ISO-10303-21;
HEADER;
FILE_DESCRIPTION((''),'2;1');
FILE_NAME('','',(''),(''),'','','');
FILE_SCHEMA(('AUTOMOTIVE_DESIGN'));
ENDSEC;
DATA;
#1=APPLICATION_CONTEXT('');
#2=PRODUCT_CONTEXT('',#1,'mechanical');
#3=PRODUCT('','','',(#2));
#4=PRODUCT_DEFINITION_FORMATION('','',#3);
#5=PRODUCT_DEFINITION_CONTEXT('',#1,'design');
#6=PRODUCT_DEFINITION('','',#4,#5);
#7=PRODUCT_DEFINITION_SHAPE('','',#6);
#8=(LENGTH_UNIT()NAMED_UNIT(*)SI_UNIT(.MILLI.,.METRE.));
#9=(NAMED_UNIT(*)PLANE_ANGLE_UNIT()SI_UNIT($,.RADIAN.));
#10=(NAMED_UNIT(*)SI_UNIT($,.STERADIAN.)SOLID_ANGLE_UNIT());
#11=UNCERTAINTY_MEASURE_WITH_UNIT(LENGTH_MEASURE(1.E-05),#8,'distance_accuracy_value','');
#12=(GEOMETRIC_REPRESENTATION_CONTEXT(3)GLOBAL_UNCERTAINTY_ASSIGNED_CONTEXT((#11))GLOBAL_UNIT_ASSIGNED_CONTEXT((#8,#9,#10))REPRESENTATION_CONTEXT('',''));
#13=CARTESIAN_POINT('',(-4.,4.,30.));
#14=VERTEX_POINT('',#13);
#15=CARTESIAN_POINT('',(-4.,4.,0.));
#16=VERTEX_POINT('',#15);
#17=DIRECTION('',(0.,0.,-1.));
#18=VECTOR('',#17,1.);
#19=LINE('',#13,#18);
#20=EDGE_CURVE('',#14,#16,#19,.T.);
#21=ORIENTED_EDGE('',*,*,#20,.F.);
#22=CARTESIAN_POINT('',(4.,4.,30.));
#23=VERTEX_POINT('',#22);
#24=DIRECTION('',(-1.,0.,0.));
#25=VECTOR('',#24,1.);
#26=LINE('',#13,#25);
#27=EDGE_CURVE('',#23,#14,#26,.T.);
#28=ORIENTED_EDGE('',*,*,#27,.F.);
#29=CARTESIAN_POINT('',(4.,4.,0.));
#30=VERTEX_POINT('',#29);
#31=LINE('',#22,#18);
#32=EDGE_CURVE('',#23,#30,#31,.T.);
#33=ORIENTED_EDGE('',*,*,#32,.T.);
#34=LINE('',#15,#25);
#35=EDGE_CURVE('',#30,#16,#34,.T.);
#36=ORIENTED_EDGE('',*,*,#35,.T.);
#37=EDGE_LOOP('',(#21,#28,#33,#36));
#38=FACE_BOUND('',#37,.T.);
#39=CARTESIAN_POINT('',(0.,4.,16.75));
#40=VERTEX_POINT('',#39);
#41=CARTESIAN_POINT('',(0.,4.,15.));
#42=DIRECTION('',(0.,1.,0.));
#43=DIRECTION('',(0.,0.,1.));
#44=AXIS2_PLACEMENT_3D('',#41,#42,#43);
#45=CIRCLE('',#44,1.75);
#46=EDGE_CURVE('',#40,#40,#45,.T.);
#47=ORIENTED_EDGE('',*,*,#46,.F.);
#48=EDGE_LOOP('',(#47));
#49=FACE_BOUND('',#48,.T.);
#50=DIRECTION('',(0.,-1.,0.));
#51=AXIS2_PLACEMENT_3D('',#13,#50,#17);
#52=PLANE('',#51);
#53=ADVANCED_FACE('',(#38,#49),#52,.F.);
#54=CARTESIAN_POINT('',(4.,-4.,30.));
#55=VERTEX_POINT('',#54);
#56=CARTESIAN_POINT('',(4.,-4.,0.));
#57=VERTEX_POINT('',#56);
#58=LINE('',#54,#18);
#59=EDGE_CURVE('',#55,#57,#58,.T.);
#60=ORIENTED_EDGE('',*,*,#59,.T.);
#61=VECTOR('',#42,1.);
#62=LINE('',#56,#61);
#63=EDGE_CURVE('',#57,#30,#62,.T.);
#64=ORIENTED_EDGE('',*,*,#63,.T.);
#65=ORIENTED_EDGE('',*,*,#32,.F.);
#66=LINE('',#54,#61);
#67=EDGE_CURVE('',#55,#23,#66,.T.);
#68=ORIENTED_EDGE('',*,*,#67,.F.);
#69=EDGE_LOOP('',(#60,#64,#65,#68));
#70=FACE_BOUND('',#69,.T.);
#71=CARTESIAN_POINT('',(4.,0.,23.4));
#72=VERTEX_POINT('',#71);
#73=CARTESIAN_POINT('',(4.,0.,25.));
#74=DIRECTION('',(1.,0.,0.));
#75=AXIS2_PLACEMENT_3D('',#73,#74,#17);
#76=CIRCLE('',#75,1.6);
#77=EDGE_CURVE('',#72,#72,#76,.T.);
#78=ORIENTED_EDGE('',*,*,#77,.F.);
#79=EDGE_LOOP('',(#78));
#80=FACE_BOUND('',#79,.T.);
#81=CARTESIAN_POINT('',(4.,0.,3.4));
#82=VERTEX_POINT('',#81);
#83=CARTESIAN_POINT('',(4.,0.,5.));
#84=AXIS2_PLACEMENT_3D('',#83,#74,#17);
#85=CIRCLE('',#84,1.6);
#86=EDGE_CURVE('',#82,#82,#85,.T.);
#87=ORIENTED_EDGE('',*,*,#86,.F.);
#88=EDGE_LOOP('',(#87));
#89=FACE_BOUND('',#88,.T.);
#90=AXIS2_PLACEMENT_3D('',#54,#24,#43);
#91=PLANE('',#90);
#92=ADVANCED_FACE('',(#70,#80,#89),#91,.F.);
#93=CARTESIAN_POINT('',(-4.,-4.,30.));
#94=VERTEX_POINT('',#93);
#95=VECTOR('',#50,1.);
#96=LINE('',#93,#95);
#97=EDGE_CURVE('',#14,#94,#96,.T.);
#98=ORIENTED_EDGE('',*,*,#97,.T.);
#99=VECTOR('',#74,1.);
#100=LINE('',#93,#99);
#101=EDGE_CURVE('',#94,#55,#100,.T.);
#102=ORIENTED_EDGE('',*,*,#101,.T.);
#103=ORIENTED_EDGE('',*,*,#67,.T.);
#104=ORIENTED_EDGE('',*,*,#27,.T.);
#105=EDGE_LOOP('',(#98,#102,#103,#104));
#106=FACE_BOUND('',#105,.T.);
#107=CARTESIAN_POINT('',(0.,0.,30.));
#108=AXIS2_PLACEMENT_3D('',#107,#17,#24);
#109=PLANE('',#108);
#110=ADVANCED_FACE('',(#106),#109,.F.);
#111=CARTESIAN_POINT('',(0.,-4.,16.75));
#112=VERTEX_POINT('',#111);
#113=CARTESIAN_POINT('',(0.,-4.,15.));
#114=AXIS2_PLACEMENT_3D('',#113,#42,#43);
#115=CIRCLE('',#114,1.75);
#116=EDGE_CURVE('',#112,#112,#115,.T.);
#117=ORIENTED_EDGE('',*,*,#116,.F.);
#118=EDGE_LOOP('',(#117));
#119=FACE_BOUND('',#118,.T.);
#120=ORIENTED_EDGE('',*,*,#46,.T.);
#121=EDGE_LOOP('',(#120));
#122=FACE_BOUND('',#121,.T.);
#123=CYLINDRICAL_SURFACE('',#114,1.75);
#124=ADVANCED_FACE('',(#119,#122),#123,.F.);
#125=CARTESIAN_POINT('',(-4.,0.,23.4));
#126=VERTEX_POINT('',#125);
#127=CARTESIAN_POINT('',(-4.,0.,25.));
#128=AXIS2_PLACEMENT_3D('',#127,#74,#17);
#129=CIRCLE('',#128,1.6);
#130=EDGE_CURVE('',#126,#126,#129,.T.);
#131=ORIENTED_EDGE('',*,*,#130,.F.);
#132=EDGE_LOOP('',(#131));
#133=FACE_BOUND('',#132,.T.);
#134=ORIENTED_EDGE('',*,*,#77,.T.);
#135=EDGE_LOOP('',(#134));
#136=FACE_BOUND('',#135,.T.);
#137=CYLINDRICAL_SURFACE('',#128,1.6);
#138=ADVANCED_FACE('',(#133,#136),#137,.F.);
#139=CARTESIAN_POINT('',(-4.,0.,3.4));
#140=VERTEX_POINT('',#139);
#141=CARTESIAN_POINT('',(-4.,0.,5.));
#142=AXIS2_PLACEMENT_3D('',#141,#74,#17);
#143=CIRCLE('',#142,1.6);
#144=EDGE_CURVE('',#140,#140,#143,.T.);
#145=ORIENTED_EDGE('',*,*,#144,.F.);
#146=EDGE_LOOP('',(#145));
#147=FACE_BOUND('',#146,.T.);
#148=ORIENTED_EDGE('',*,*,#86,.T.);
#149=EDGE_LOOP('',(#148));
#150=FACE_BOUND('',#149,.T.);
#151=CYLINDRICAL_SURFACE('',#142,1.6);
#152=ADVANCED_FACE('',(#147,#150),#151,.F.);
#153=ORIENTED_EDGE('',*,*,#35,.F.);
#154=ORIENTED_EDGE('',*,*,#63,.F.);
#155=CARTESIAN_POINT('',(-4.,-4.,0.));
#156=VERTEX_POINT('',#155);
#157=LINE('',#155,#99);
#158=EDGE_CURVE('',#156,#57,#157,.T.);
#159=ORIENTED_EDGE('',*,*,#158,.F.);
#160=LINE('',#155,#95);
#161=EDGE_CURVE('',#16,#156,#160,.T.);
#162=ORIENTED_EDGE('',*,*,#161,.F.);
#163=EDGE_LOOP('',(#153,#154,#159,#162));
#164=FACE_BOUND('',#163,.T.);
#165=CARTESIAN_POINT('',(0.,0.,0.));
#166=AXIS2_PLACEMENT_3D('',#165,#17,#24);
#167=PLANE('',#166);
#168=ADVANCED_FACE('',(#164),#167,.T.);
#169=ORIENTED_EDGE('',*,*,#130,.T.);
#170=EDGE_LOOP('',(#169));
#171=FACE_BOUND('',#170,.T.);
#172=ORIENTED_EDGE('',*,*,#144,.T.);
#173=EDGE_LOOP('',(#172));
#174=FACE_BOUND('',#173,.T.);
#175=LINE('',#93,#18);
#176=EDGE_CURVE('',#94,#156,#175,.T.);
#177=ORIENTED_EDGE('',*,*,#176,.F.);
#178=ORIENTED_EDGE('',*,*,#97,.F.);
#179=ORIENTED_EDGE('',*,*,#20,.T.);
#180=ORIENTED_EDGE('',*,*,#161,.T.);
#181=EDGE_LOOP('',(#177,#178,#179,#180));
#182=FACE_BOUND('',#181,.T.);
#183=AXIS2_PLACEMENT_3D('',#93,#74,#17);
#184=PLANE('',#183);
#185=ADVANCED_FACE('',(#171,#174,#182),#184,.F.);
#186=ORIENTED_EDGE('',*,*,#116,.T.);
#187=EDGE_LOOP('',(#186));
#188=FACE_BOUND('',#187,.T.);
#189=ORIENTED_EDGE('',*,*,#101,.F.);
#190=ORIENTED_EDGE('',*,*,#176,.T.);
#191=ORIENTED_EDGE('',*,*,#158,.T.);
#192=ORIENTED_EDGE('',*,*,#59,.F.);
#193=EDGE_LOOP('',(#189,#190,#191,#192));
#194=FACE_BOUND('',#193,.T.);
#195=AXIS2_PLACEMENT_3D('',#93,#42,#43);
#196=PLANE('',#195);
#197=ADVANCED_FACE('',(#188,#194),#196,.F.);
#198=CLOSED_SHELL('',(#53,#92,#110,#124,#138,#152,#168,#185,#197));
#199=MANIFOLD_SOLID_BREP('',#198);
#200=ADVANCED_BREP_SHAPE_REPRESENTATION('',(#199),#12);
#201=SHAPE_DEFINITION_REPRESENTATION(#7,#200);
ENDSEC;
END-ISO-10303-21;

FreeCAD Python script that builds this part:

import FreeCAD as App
import Part
import Sketcher

doc = App.newDocument("Part")
body = doc.addObject("PartDesign::Body", "Body")

sketch1 = body.newObject("Sketcher::SketchObject", "Sketch")
sketch1.AttachmentSupport = (doc.getObject("XY_Plane"), [""])
sketch1.MapMode = "FlatFace"
sketch1.addGeometry([
    Part.LineSegment(App.Vector(-4, 4, 0), App.Vector(-4, -4, 0)),
    Part.LineSegment(App.Vector(-4, -4, 0), App.Vector(4, -4, 0)),
    Part.LineSegment(App.Vector(4, -4, 0), App.Vector(4, 4, 0)),
    Part.LineSegment(App.Vector(4, 4, 0), App.Vector(-4, 4, 0)),
], False)
sketch1.addConstraint([
    Sketcher.Constraint("Coincident", 0, 2, 1, 1),
    Sketcher.Constraint("Coincident", 1, 2, 2, 1),
    Sketcher.Constraint("Coincident", 2, 2, 3, 1),
    Sketcher.Constraint("Coincident", 3, 2, 0, 1),
    Sketcher.Constraint("Vertical", 0),
    Sketcher.Constraint("Horizontal", 1),
    Sketcher.Constraint("Vertical", 2),
    Sketcher.Constraint("Horizontal", 3),
    Sketcher.Constraint("Symmetric", 0, 2, 2, 2, -1, 1),
    Sketcher.Constraint("Equal", 3, 0),
    Sketcher.Constraint("DistanceX", 1, 1, 1, 2, 8.0),
])
pad1 = body.newObject("PartDesign::Pad", "Pad")
pad1.Profile = sketch1
pad1.Length = 30

sketch2 = body.newObject("Sketcher::SketchObject", "Sketch001")
sketch2.AttachmentSupport = (doc.getObject("XZ_Plane"), [""])
sketch2.MapMode = "FlatFace"
sketch2.AttachmentOffset = App.Placement(App.Vector(0, 0, -4), App.Rotation())
sketch2.addGeometry(Part.Circle(App.Vector(0, 15, 0), App.Vector(0, 0, 1), 1.75), False)
sketch2.addConstraint([
    Sketcher.Constraint("PointOnObject", 0, 3, -2),
    Sketcher.Constraint("Diameter", 0, 3.5),
    Sketcher.Constraint("DistanceY", -1, 1, 0, 3, 15.0),
])
pocket1 = body.newObject("PartDesign::Pocket", "Pocket")
pocket1.Profile = sketch2
pocket1.Type = "ThroughAll"
pocket1.Reversed = True

sketch3 = body.newObject("Sketcher::SketchObject", "Sketch002")
sketch3.AttachmentSupport = (doc.getObject("YZ_Plane"), [""])
sketch3.MapMode = "FlatFace"
sketch3.AttachmentOffset = App.Placement(App.Vector(0, 0, 4), App.Rotation())
sketch3.addGeometry([
    Part.Circle(App.Vector(0, 25, 0), App.Vector(0, 0, 1), 1.6),
    Part.Circle(App.Vector(0, 5, 0), App.Vector(0, 0, 1), 1.6),
], False)
sketch3.addConstraint([
    Sketcher.Constraint("Equal", 0, 1),
    Sketcher.Constraint("PointOnObject", 0, 3, -2),
    Sketcher.Constraint("PointOnObject", 1, 3, -2),
    Sketcher.Constraint("Diameter", 0, 3.2),
    Sketcher.Constraint("DistanceY", -1, 1, 0, 3, 25.0),
    Sketcher.Constraint("DistanceY", -1, 1, 1, 3, 5.0),
])
pocket2 = body.newObject("PartDesign::Pocket", "Pocket001")
pocket2.Profile = sketch3
pocket2.Type = "ThroughAll"

doc.recompute()
